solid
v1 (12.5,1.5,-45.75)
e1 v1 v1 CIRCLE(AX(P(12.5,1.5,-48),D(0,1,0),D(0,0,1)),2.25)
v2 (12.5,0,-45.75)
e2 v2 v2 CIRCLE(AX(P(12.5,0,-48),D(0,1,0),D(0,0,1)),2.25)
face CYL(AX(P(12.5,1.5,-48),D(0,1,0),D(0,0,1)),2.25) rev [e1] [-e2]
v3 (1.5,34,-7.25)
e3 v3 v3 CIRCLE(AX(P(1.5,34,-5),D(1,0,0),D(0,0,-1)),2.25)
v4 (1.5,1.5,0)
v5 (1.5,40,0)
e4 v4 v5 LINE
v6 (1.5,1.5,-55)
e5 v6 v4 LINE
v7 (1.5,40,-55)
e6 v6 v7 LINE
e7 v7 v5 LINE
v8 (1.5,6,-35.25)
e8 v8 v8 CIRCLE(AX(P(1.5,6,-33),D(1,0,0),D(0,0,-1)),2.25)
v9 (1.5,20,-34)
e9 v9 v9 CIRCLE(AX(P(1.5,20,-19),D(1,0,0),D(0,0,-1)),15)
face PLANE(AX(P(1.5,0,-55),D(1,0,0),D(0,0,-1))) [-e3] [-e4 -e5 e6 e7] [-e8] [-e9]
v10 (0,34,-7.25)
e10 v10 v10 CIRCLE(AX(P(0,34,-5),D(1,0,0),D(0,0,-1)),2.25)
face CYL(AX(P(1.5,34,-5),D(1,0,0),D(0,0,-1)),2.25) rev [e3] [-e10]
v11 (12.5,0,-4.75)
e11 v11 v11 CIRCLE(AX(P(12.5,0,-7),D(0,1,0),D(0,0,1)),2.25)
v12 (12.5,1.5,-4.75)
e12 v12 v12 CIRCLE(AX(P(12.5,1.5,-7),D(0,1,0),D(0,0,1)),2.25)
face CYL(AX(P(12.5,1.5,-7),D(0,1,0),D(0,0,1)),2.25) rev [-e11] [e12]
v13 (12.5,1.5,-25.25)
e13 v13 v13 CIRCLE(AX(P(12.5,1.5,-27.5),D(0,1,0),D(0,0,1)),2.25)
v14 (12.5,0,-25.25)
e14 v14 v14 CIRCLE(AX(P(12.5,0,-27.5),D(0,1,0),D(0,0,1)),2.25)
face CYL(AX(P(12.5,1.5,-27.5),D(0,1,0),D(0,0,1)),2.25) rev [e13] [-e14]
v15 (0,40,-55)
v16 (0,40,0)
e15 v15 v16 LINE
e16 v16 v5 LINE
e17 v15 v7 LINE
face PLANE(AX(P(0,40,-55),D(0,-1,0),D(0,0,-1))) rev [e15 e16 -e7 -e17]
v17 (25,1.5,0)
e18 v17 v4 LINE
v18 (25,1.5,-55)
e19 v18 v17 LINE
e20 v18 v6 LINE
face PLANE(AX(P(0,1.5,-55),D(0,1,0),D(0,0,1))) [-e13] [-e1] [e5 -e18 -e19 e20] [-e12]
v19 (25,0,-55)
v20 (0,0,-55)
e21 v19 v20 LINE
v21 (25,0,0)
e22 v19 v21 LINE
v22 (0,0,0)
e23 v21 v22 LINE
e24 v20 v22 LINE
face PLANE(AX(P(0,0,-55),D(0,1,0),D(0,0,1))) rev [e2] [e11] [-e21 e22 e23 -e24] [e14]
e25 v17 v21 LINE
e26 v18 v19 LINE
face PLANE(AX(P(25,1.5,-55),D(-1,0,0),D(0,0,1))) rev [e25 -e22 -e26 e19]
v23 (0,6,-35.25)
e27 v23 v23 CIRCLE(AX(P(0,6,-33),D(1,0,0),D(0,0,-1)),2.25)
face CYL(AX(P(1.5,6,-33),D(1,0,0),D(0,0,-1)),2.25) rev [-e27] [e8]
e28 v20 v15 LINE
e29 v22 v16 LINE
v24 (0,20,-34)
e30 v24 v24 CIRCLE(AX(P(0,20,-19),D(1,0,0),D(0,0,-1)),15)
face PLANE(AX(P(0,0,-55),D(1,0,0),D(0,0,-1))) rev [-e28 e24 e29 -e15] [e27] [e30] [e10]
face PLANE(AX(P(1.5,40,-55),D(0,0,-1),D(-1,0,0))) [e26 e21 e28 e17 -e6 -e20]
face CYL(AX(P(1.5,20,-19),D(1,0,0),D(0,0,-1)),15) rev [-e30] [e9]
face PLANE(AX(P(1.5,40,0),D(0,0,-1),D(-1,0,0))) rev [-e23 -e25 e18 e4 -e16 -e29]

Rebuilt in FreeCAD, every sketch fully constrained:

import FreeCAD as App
import Part
import Sketcher

V = App.Vector
Q = App.Units.Quantity


def add_polygon(sketch, points):
    """Adds a closed chain of lines whose ends are joined by coincident constraints."""
    first, n = sketch.GeometryCount, len(points)
    for a, b in zip(points, points[1:] + points[:1]):
        sketch.addGeometry(Part.LineSegment(App.Vector(*a, 0), App.Vector(*b, 0)), False)
    for i in range(n):
        sketch.addConstraint(Sketcher.Constraint("Coincident", first + i, 2, first + (i + 1) % n, 1))

doc = App.newDocument("Part")
body = doc.addObject("PartDesign::Body", "Body")

# Sketch on XY plane
sketch1 = body.newObject("Sketcher::SketchObject", "Sketch")
sketch1.AttachmentSupport = (doc.getObject("XY_Plane"), [""])
sketch1.MapMode = "FlatFace"
add_polygon(sketch1, [(0, 40), (0, 0), (25, 0), (25, 1.5), (1.5, 1.5), (1.5, 40)])  # lines 0-5
sketch1.addConstraint(Sketcher.Constraint("Vertical", 0))
sketch1.addConstraint(Sketcher.Constraint("Horizontal", 1))
sketch1.addConstraint(Sketcher.Constraint("Vertical", 2))
sketch1.addConstraint(Sketcher.Constraint("Horizontal", 3))
sketch1.addConstraint(Sketcher.Constraint("Vertical", 4))
sketch1.addConstraint(Sketcher.Constraint("Horizontal", 5))
sketch1.addConstraint(Sketcher.Constraint("Coincident", 0, 2, -1, 1))
sketch1.addConstraint(Sketcher.Constraint("Equal", 5, 2))
sketch1.addConstraint(Sketcher.Constraint("DistanceX", 1, 1, 1, 2, Q("25 mm")))
sketch1.addConstraint(Sketcher.Constraint("DistanceY", 0, 2, 0, 1, Q("40 mm")))
sketch1.addConstraint(Sketcher.Constraint("DistanceX", 3, 2, 3, 1, Q("23.5 mm")))
pad1 = body.newObject("PartDesign::Pad", "Pad")
pad1.Profile = sketch1
pad1.Length = 55
pad1.Reversed = True

# Sketch on XZ plane
sketch2 = body.newObject("Sketcher::SketchObject", "Sketch001")
sketch2.AttachmentSupport = (doc.getObject("XZ_Plane"), [""])
sketch2.MapMode = "FlatFace"
sketch2.AttachmentOffset = App.Placement(V(0, 0, -1.5), App.Rotation())
sketch2.addGeometry(Part.Circle(V(12.5, -7, 0), V(0, 0, 1), 2.2), False)
sketch2.addGeometry(Part.Circle(V(12.5, -27.5, 0), V(0, 0, 1), 2.2), False)
sketch2.addGeometry(Part.Circle(V(12.5, -48, 0), V(0, 0, 1), 2.2), False)
sketch2.addConstraint(Sketcher.Constraint("Equal", 0, 1))
sketch2.addConstraint(Sketcher.Constraint("Equal", 1, 2))
sketch2.addConstraint(Sketcher.Constraint("Vertical", 0, 3, 1, 3))
sketch2.addConstraint(Sketcher.Constraint("Vertical", 1, 3, 2, 3))
sketch2.addConstraint(Sketcher.Constraint("Diameter", 0, Q("4.5 mm")))
sketch2.addConstraint(Sketcher.Constraint("DistanceY", 0, 3, -1, 1, Q("7 mm")))
sketch2.addConstraint(Sketcher.Constraint("DistanceY", 2, 3, -1, 1, Q("48 mm")))
sketch2.addConstraint(Sketcher.Constraint("DistanceX", -1, 1, 0, 3, Q("12.5 mm")))
sketch2.addConstraint(Sketcher.Constraint("DistanceY", 1, 3, -1, 1, Q("27.5 mm")))
doc.recompute()
hole = body.newObject("PartDesign::Hole", "Hole")
hole.Profile = sketch2
hole.ThreadType = "None"
hole.Diameter = 4.5
hole.DepthType = "ThroughAll"
hole.Reversed = True

# Sketch on YZ plane
sketch3 = body.newObject("Sketcher::SketchObject", "Sketch002")
sketch3.AttachmentSupport = (doc.getObject("YZ_Plane"), [""])
sketch3.MapMode = "FlatFace"
sketch3.AttachmentOffset = App.Placement(V(0, 0, 1.5), App.Rotation())
sketch3.addGeometry(Part.Circle(V(34, -5, 0), V(0, 0, 1), 2.2), False)
sketch3.addGeometry(Part.Circle(V(6, -33, 0), V(0, 0, 1), 2.2), False)
sketch3.addConstraint(Sketcher.Constraint("Equal", 0, 1))
sketch3.addConstraint(Sketcher.Constraint("Diameter", 0, Q("4.5 mm")))
sketch3.addConstraint(Sketcher.Constraint("DistanceX", -1, 1, 0, 3, Q("34 mm")))
sketch3.addConstraint(Sketcher.Constraint("DistanceY", 0, 3, -1, 1, Q("5 mm")))
sketch3.addConstraint(Sketcher.Constraint("DistanceX", -1, 1, 1, 3, Q("6 mm")))
sketch3.addConstraint(Sketcher.Constraint("DistanceY", 1, 3, -1, 1, Q("33 mm")))
doc.recompute()
hole2 = body.newObject("PartDesign::Hole", "Hole001")
hole2.Profile = sketch3
hole2.ThreadType = "None"
hole2.Diameter = 4.5
hole2.DepthType = "ThroughAll"

# Sketch on YZ plane
sketch4 = body.newObject("Sketcher::SketchObject", "Sketch003")
sketch4.AttachmentSupport = (doc.getObject("YZ_Plane"), [""])
sketch4.MapMode = "FlatFace"
sketch4.AttachmentOffset = App.Placement(V(0, 0, 1.5), App.Rotation())
sketch4.addGeometry(Part.Circle(V(20, -19, 0), V(0, 0, 1), 15), False)
sketch4.addConstraint(Sketcher.Constraint("Diameter", 0, Q("30 mm")))
sketch4.addConstraint(Sketcher.Constraint("DistanceX", -1, 1, 0, 3, Q("20 mm")))
sketch4.addConstraint(Sketcher.Constraint("DistanceY", 0, 3, -1, 1, Q("19 mm")))
doc.recompute()
hole3 = body.newObject("PartDesign::Hole", "Hole002")
hole3.Profile = sketch4
hole3.ThreadType = "None"
hole3.Diameter = 30
hole3.DepthType = "Dimension"
hole3.Depth = 1.5
hole3.DrillPoint = "Angled"
hole3.DrillPointAngle = 118

doc.recompute()
